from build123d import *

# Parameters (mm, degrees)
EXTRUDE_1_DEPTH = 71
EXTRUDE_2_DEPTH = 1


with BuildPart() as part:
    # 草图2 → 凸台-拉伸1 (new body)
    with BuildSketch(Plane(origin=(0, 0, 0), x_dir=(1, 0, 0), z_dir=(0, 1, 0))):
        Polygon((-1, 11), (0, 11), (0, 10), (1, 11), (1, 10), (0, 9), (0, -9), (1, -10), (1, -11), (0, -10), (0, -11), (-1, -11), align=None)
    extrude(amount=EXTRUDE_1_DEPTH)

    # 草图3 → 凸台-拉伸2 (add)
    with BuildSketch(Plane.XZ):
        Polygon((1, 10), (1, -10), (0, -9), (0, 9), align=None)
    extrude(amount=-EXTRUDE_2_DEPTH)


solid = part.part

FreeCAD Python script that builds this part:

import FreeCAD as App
import Part
import Sketcher
from FreeCAD import Vector
Q = App.Units.Quantity


def add_polygon(sketch, points):
    """Adds a closed chain of lines whose ends are joined by coincident constraints."""
    first, n = sketch.GeometryCount, len(points)
    for a, b in zip(points, points[1:] + points[:1]):
        sketch.addGeometry(Part.LineSegment(App.Vector(*a, 0), App.Vector(*b, 0)), False)
    for i in range(n):
        sketch.addConstraint(Sketcher.Constraint("Coincident", first + i, 2, first + (i + 1) % n, 1))

doc = App.newDocument("Part")
body = doc.addObject("PartDesign::Body", "Body")

# Sketch on XZ plane
sketch1 = body.newObject("Sketcher::SketchObject", "Sketch")
sketch1.AttachmentSupport = (doc.getObject("XZ_Plane"), [""])
sketch1.MapMode = "FlatFace"
add_polygon(sketch1, [(0, -11), (-1, -11), (-1, 11), (0, 11), (0, 10), (1, 11), (1, 10), (0, 9), (0, -9), (1, -10), (1, -11), (0, -10)])  # lines 0-11
sketch1.addConstraint(Sketcher.Constraint("Horizontal", 0))
sketch1.addConstraint(Sketcher.Constraint("Vertical", 1))
sketch1.addConstraint(Sketcher.Constraint("Horizontal", 2))
sketch1.addConstraint(Sketcher.Constraint("Vertical", 3))
sketch1.addConstraint(Sketcher.Constraint("Vertical", 5))
sketch1.addConstraint(Sketcher.Constraint("Vertical", 7))
sketch1.addConstraint(Sketcher.Constraint("Vertical", 9))
sketch1.addConstraint(Sketcher.Constraint("Vertical", 11))
sketch1.addConstraint(Sketcher.Constraint("Symmetric", 0, 2, 4, 2, -1, 1))
sketch1.addConstraint(Sketcher.Constraint("Symmetric", 6, 2, 7, 2, -1, 1))
sketch1.addConstraint(Sketcher.Constraint("Symmetric", 1, 2, 9, 2, -1, 1))
sketch1.addConstraint(Sketcher.Constraint("Symmetric", 3, 2, 10, 2, -1, 1))
sketch1.addConstraint(Sketcher.Constraint("Symmetric", 2, 2, 11, 2, -1))
sketch1.addConstraint(Sketcher.Constraint("Parallel", 4, 6))
sketch1.addConstraint(Sketcher.Constraint("Perpendicular", 6, 8))
sketch1.addConstraint(Sketcher.Constraint("Parallel", 8, 10))
sketch1.addConstraint(Sketcher.Constraint("Horizontal", 3, 2, 5, 2))
sketch1.addConstraint(Sketcher.Constraint("DistanceX", 0, 2, 0, 1, Q("1 mm")))
sketch1.addConstraint(Sketcher.Constraint("DistanceY", 1, 1, 1, 2, Q("22 mm")))
pad1 = body.newObject("PartDesign::Pad", "Pad")
pad1.Profile = sketch1
pad1.Length = 71
pad1.Reversed = True

# Sketch on XZ plane
sketch2 = body.newObject("Sketcher::SketchObject", "Sketch001")
sketch2.AttachmentSupport = (doc.getObject("XZ_Plane"), [""])
sketch2.MapMode = "FlatFace"
add_polygon(sketch2, [(1, -10), (1, 10), (0, 9), (0, -9)])  # lines 0-3
sketch2.addConstraint(Sketcher.Constraint("Vertical", 0))
sketch2.addConstraint(Sketcher.Constraint("Vertical", 2))
sketch2.addConstraint(Sketcher.Constraint("Symmetric", 1, 2, 2, 2, -1, 1))
sketch2.addConstraint(Sketcher.Constraint("Perpendicular", 1, 3))
sketch2.addConstraint(Sketcher.Constraint("Equal", 1, 3))
sketch2.addConstraint(Sketcher.Constraint("DistanceY", 0, 1, 0, 2, Q("20 mm")))
sketch2.addConstraint(Sketcher.Constraint("DistanceY", 2, 2, 2, 1, Q("18 mm")))
pad2 = body.newObject("PartDesign::Pad", "Pad001")
pad2.Profile = sketch2
pad2.Length = 1
pad2.Reversed = True

doc.recompute()
